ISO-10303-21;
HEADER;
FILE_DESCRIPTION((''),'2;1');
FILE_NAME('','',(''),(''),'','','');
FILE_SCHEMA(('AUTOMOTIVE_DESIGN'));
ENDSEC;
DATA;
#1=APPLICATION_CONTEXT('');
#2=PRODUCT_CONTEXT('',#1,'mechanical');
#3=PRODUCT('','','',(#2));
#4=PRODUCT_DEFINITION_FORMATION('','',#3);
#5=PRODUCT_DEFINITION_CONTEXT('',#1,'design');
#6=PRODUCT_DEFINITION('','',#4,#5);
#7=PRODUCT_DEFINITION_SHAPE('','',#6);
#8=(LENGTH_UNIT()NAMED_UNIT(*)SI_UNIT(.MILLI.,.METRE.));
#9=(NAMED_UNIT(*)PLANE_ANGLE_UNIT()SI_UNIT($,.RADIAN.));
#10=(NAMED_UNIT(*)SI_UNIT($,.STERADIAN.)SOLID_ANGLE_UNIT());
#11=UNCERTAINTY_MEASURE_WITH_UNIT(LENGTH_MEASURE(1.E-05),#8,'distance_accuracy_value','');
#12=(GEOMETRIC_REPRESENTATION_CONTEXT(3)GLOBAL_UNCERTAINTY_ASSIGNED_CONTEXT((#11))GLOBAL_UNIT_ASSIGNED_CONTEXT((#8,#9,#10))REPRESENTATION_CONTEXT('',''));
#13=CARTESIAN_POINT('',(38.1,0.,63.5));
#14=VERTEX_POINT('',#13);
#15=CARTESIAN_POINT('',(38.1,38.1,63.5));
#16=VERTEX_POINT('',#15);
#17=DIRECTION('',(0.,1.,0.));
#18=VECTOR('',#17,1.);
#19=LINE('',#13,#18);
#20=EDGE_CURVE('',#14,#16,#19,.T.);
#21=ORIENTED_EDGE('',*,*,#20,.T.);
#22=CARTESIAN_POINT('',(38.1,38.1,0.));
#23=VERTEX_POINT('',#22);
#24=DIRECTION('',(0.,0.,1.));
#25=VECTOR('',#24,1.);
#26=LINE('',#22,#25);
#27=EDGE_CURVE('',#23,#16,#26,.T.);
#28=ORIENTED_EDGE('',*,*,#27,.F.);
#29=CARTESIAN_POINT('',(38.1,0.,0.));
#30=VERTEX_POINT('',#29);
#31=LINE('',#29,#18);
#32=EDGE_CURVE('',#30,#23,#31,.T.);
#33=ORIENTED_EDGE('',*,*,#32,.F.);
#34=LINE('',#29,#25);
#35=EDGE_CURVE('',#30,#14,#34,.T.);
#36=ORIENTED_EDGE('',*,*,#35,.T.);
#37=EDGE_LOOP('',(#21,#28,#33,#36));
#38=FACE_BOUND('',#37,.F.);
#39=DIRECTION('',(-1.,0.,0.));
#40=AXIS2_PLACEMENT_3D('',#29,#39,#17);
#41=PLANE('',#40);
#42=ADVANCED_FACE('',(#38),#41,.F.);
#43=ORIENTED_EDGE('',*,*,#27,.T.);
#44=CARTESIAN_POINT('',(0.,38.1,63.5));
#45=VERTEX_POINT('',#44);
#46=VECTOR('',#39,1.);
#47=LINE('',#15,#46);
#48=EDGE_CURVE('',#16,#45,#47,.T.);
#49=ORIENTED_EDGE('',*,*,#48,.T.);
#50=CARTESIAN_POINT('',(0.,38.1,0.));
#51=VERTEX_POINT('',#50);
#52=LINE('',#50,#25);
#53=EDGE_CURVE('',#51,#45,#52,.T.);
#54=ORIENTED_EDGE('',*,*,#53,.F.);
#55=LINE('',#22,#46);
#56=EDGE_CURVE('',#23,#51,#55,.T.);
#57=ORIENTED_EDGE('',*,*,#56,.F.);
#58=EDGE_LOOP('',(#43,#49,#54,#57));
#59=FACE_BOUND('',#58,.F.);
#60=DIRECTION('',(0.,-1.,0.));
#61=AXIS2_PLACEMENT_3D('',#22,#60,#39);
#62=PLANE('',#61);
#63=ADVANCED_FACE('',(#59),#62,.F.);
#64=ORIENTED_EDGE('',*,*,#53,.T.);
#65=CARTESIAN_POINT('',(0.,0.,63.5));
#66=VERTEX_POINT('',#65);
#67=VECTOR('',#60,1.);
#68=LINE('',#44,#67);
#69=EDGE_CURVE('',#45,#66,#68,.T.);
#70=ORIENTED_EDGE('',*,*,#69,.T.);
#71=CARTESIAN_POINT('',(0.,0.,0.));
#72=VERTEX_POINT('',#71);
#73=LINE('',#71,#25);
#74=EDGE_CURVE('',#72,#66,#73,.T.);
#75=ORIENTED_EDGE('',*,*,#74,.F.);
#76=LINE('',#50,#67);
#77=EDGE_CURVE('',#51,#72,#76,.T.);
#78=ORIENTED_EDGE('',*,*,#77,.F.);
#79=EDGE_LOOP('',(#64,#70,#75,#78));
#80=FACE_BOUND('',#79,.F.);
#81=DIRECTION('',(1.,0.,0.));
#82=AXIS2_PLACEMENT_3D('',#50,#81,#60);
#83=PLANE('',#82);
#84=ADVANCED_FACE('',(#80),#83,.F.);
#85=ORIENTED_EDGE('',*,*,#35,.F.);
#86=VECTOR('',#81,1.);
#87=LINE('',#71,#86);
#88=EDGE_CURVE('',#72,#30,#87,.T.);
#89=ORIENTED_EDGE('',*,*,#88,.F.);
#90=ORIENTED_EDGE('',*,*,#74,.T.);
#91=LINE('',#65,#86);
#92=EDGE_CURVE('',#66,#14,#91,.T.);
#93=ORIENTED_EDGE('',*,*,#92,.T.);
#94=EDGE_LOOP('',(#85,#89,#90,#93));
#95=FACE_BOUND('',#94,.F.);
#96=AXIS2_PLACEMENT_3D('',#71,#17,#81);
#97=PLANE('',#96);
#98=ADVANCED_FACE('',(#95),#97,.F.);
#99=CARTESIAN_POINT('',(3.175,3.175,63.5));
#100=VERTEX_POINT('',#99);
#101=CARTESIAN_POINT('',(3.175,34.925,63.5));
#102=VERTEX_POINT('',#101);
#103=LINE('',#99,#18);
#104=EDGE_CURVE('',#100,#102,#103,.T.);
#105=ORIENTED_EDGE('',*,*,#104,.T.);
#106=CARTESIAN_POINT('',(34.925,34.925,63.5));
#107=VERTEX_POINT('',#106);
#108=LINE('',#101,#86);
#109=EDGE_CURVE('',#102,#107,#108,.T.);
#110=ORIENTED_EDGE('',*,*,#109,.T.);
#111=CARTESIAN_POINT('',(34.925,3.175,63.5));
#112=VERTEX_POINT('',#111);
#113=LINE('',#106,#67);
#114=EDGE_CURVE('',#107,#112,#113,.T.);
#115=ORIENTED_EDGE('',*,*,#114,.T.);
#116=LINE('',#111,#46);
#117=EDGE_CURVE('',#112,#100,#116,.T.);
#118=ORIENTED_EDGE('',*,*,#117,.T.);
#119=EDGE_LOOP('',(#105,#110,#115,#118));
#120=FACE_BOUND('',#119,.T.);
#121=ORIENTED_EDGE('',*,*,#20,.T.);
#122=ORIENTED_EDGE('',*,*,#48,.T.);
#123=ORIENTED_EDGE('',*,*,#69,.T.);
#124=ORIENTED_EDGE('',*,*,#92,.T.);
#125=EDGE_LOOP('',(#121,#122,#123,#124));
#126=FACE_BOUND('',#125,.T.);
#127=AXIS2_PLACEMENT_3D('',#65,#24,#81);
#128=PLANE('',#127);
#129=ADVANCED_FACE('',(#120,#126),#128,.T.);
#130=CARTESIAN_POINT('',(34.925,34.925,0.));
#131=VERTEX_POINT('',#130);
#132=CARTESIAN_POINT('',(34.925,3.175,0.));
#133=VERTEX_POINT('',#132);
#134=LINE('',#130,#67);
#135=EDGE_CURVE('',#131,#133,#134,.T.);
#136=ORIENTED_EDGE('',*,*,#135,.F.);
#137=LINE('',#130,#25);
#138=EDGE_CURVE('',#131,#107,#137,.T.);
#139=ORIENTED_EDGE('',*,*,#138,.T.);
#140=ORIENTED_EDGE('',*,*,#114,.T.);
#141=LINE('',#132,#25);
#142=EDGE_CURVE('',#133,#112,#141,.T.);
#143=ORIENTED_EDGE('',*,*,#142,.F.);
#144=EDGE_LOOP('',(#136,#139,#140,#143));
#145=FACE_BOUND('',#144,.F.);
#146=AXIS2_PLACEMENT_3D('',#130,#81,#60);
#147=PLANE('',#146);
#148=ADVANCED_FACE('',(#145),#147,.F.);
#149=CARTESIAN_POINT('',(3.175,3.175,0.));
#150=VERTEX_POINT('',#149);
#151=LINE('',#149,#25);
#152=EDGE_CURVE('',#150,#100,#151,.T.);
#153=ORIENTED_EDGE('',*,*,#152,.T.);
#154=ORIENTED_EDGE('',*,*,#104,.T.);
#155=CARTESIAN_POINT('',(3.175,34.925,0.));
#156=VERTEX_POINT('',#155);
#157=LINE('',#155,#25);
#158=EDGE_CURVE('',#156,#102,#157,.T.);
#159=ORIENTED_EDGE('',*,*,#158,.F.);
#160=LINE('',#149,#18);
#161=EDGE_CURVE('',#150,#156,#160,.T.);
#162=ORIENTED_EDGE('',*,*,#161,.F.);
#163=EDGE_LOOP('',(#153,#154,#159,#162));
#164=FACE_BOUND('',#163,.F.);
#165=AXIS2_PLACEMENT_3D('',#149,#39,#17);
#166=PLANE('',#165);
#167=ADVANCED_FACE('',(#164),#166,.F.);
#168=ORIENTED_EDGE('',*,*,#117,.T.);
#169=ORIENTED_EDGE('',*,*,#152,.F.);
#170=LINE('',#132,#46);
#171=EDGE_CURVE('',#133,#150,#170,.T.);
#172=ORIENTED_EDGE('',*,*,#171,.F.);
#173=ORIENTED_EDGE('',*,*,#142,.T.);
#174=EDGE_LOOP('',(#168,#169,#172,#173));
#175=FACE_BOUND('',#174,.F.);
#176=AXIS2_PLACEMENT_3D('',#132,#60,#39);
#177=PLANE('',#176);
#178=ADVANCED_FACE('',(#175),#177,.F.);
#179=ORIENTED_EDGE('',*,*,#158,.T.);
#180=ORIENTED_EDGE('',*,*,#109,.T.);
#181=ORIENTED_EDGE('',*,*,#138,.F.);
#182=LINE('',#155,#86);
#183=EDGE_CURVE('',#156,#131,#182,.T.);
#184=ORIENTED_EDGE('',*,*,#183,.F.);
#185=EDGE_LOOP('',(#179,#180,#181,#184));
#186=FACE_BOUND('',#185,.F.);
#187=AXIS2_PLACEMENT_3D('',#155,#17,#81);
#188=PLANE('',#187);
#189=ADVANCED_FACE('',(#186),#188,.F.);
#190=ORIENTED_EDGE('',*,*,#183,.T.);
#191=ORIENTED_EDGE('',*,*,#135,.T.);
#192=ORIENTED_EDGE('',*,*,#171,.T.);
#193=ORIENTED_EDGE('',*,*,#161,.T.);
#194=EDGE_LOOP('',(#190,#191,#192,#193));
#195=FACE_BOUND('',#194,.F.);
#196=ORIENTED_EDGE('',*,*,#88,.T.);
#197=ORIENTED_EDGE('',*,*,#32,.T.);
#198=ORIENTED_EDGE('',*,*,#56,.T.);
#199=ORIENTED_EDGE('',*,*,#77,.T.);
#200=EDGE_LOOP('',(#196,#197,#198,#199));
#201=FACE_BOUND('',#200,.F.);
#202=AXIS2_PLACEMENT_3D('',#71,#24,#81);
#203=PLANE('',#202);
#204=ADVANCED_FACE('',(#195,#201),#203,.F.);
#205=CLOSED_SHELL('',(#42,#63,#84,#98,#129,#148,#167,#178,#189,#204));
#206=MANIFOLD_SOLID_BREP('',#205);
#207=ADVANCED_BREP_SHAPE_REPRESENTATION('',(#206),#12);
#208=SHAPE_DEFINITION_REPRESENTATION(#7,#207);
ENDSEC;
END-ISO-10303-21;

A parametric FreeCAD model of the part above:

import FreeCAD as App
import Part
import Sketcher
from FreeCAD import Vector
Q = App.Units.Quantity


def add_polygon(sketch, points):
    """Adds a closed chain of lines whose ends are joined by coincident constraints."""
    first, n = sketch.GeometryCount, len(points)
    for a, b in zip(points, points[1:] + points[:1]):
        sketch.addGeometry(Part.LineSegment(App.Vector(*a, 0), App.Vector(*b, 0)), False)
    for i in range(n):
        sketch.addConstraint(Sketcher.Constraint("Coincident", first + i, 2, first + (i + 1) % n, 1))

doc = App.newDocument("Part")
params = doc.addObject("Spreadsheet::Sheet", "Params")
for row, (alias, value) in enumerate([
    ("sketch1_width", "1.5 in"),
    ("pad1_length", "2.5 in"),
], start=1):
    params.set(f"A{row}", alias)
    params.set(f"B{row}", "=" + value)
    params.setAlias(f"B{row}", alias)

body = doc.addObject("PartDesign::Body", "Body")

# Sketch on XY plane
sketch1 = body.newObject("Sketcher::SketchObject", "Sketch")
sketch1.AttachmentSupport = (doc.getObject("XY_Plane"), [""])
sketch1.MapMode = "FlatFace"
add_polygon(sketch1, [(0, 38), (0, 0), (38, 0), (38, 38)])  # lines 0-3
add_polygon(sketch1, [(3, 3), (3, 35), (35, 35), (35, 3)])  # lines 4-7
sketch1.addConstraint(Sketcher.Constraint("Vertical", 0))
sketch1.addConstraint(Sketcher.Constraint("Horizontal", 1))
sketch1.addConstraint(Sketcher.Constraint("Vertical", 2))
sketch1.addConstraint(Sketcher.Constraint("Horizontal", 3))
sketch1.addConstraint(Sketcher.Constraint("Vertical", 4))
sketch1.addConstraint(Sketcher.Constraint("Horizontal", 5))
sketch1.addConstraint(Sketcher.Constraint("Vertical", 6))
sketch1.addConstraint(Sketcher.Constraint("Horizontal", 7))
sketch1.addConstraint(Sketcher.Constraint("Coincident", 0, 2, -1, 1))
sketch1.addConstraint(Sketcher.Constraint("Equal", 3, 0))
sketch1.addConstraint(Sketcher.Constraint("Equal", 7, 4))
sketch1.addConstraint(Sketcher.Constraint("DistanceX", 1, 1, 1, 2, Q("1.5 in")))
sketch1.addConstraint(Sketcher.Constraint("DistanceX", -1, 1, 4, 2, Q("0.125 in")))
sketch1.addConstraint(Sketcher.Constraint("DistanceY", -1, 1, 6, 2, Q("0.125 in")))
sketch1.addConstraint(Sketcher.Constraint("DistanceY", 4, 2, 3, 2, Q("0.125 in")))
sketch1.setExpression("Constraints[19]", "Params.sketch1_width")
pad1 = body.newObject("PartDesign::Pad", "Pad")
pad1.Profile = sketch1
pad1.setExpression("Length", "Params.pad1_length")

doc.recompute()
